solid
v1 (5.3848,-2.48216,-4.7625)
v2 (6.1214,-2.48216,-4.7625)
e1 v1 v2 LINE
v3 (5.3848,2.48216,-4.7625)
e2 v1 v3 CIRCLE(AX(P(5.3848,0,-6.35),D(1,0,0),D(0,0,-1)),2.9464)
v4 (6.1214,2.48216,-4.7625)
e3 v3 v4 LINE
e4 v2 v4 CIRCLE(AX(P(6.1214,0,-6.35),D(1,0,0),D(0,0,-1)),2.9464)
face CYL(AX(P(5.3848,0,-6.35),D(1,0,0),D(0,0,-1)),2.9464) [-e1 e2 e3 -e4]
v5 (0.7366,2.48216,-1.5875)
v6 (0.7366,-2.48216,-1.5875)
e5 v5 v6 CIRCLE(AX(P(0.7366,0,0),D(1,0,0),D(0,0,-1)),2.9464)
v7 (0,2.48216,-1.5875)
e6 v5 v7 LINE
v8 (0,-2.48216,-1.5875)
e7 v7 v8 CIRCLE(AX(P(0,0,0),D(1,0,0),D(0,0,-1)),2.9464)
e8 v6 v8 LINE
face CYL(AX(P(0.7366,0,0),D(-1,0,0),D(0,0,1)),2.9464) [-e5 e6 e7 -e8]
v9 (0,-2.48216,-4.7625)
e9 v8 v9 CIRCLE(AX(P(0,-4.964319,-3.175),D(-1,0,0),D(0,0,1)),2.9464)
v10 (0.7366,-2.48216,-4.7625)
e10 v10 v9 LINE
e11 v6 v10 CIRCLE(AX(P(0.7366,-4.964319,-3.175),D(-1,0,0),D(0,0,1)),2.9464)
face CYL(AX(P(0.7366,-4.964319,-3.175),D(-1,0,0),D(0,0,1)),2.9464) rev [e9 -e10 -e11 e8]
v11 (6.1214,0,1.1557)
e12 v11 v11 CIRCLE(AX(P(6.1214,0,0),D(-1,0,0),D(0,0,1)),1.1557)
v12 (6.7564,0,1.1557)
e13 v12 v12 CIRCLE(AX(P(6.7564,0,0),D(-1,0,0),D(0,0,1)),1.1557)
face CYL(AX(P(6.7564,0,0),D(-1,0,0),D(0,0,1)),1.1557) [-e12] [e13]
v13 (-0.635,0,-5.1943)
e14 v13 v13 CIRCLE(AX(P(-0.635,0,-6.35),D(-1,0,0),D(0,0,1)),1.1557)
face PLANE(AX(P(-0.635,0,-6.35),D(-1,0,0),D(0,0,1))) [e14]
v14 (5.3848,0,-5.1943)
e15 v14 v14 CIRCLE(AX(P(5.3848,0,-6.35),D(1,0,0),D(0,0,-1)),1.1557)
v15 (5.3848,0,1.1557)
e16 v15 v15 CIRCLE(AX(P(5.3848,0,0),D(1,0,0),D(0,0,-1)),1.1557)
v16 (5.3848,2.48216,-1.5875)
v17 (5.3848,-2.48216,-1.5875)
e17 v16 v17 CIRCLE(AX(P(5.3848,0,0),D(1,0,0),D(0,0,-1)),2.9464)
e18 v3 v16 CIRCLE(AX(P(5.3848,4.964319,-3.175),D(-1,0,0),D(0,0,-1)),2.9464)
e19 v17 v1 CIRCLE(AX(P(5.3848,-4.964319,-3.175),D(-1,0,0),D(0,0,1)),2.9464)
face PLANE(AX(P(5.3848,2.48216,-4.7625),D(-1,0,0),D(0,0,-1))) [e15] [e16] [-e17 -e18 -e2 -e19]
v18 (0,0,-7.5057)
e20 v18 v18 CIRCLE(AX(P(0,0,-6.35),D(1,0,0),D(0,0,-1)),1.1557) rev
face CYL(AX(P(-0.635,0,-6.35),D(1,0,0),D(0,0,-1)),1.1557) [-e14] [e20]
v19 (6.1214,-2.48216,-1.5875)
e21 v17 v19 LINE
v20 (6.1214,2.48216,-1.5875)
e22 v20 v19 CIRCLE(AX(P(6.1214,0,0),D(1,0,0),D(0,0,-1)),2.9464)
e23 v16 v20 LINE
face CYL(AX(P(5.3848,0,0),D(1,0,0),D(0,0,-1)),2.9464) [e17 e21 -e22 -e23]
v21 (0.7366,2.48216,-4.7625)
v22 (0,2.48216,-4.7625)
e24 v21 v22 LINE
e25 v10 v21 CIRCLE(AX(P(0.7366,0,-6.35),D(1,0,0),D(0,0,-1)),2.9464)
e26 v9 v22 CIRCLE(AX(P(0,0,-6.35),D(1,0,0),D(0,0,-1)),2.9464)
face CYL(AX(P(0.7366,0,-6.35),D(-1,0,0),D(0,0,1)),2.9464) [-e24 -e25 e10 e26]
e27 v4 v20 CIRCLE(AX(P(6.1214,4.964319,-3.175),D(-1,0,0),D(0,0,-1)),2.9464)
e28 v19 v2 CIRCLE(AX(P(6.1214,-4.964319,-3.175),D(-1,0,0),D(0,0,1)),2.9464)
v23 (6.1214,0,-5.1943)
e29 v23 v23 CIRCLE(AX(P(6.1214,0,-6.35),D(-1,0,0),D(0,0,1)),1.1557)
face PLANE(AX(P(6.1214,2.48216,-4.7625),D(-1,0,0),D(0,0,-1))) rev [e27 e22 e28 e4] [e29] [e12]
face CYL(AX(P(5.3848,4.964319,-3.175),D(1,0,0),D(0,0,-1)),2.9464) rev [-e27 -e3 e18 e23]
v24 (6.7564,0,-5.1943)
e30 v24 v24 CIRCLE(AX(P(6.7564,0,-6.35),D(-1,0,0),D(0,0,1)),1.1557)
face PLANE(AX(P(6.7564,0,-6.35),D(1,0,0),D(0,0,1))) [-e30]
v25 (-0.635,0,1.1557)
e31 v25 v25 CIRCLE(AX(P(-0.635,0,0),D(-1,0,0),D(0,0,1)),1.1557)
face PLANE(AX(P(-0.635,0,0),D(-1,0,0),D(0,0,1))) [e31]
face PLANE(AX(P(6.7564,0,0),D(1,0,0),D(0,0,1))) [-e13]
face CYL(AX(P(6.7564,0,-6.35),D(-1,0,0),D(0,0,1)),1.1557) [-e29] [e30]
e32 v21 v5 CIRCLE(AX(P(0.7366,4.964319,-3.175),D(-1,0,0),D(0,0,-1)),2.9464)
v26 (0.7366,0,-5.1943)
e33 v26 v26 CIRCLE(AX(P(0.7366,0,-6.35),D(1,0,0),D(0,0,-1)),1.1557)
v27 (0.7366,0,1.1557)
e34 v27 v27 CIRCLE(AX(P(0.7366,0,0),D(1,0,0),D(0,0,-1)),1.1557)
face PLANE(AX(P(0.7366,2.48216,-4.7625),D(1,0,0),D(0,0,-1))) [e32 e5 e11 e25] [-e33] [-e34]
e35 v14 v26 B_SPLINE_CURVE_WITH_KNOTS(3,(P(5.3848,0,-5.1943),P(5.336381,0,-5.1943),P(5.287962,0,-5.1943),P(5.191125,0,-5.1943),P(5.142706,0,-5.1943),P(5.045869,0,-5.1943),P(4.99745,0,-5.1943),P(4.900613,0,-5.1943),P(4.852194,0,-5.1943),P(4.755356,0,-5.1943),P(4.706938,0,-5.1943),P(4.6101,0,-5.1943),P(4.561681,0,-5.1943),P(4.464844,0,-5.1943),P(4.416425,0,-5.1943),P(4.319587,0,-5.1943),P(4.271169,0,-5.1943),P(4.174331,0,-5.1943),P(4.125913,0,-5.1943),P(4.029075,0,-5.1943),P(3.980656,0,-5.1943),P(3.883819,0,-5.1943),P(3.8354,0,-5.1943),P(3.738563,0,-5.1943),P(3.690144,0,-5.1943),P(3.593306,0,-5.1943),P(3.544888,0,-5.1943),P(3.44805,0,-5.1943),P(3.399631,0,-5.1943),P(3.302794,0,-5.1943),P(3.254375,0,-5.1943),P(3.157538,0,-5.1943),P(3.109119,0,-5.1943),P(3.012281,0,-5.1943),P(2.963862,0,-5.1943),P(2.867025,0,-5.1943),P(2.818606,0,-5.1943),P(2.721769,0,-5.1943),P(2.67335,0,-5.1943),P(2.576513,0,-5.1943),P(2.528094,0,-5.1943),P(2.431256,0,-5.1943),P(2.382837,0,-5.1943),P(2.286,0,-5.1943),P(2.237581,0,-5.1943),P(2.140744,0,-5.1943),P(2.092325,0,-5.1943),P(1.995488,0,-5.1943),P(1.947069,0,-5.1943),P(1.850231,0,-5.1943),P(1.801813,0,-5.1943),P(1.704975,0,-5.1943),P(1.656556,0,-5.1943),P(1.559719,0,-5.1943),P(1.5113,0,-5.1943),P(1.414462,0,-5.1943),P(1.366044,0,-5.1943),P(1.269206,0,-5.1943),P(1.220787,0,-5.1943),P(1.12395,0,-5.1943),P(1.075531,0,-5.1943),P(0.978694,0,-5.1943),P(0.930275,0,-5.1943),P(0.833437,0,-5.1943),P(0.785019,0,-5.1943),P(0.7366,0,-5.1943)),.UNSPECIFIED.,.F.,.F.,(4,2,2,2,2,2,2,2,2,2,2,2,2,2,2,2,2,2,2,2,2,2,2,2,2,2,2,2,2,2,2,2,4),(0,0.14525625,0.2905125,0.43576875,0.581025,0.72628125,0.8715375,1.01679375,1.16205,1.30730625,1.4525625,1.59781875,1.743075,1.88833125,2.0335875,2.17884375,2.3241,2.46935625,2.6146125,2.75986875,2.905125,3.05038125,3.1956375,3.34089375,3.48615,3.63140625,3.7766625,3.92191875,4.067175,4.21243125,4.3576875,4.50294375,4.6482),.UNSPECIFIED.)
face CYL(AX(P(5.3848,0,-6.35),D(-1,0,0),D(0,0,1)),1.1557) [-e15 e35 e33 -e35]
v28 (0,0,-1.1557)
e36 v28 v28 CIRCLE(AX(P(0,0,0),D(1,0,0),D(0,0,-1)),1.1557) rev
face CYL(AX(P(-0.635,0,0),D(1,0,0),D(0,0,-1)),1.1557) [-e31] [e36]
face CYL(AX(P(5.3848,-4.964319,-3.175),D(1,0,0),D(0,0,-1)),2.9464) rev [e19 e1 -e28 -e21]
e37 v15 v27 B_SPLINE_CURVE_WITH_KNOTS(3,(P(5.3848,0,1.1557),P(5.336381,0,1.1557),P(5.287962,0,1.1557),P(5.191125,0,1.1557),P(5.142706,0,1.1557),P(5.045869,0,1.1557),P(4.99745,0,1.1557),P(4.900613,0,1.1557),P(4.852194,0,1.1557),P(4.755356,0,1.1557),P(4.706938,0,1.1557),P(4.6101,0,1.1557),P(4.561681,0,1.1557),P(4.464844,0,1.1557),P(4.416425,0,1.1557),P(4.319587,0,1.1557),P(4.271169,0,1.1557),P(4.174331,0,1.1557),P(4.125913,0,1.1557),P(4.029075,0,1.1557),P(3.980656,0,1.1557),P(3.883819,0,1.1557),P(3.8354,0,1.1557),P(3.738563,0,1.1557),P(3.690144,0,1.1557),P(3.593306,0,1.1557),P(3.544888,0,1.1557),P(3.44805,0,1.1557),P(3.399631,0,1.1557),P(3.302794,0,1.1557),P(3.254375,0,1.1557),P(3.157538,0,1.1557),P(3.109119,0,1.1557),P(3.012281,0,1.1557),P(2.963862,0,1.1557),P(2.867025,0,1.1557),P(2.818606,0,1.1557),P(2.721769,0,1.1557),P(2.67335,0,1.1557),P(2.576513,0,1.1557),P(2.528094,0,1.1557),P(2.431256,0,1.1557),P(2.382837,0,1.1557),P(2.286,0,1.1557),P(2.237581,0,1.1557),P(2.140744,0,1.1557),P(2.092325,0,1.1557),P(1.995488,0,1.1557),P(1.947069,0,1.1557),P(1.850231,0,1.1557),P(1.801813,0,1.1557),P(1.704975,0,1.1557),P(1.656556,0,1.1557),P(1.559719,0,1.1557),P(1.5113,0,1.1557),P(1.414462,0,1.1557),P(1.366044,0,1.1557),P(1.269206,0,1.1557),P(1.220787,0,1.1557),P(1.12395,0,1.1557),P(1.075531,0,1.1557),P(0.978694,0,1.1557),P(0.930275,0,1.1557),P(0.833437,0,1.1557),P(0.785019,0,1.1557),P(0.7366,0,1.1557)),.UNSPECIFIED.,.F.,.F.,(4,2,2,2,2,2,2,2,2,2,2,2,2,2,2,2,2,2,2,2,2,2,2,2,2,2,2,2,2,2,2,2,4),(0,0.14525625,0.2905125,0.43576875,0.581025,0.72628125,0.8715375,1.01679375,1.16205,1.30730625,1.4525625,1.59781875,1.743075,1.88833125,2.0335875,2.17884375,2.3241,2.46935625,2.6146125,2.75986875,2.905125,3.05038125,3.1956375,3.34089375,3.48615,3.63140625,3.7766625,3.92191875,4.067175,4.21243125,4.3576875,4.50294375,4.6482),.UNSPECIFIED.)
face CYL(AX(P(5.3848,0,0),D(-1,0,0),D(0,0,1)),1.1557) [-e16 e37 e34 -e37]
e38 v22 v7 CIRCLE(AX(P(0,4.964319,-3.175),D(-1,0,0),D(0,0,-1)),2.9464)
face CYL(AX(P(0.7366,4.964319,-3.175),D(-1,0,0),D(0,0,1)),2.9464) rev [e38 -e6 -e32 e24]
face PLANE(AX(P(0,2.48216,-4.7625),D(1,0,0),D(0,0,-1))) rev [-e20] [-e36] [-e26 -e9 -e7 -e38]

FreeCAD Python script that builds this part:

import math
import FreeCAD as App
import Part
import Sketcher
Q = App.Units.Quantity

doc = App.newDocument("Part")
body = doc.addObject("PartDesign::Body", "Body")

# Sketch on YZ plane
sketch1 = body.newObject("Sketcher::SketchObject", "Sketch")
sketch1.AttachmentSupport = (doc.getObject("YZ_Plane"), [""])
sketch1.MapMode = "FlatFace"
sketch1.addGeometry(Part.ArcOfCircle(Part.Circle(App.Vector(0, 0, 0), App.Vector(0, 0, 1), 2.9), math.radians(-33), math.radians(213)), False)
sketch1.addGeometry(Part.ArcOfCircle(Part.Circle(App.Vector(-5, -3.2, 0), App.Vector(0, 0, 1), 2.9), math.radians(-33), math.radians(33)), False)
sketch1.addGeometry(Part.ArcOfCircle(Part.Circle(App.Vector(0, -6.3, 0), App.Vector(0, 0, 1), 2.9), math.radians(147), math.radians(393)), False)
sketch1.addGeometry(Part.ArcOfCircle(Part.Circle(App.Vector(5, -3.2, 0), App.Vector(0, 0, 1), 2.9), math.radians(147), math.radians(213)), False)
sketch1.addConstraint(Sketcher.Constraint("Tangent", 0, 2, 1, 2))
sketch1.addConstraint(Sketcher.Constraint("Tangent", 1, 1, 2, 1))
sketch1.addConstraint(Sketcher.Constraint("Tangent", 2, 2, 3, 2))
sketch1.addConstraint(Sketcher.Constraint("Tangent", 3, 1, 0, 1))
sketch1.addConstraint(Sketcher.Constraint("Coincident", 0, 3, -1, 1))
sketch1.addConstraint(Sketcher.Constraint("Equal", 0, 1))
sketch1.addConstraint(Sketcher.Constraint("Equal", 1, 2))
sketch1.addConstraint(Sketcher.Constraint("Equal", 2, 3))
sketch1.addConstraint(Sketcher.Constraint("PointOnObject", 2, 3, -2))
sketch1.addConstraint(Sketcher.Constraint("Radius", 0, Q("0.116 in")))
sketch1.addConstraint(Sketcher.Constraint("DistanceY", 2, 3, -1, 1, Q("0.25 in")))
pad1 = body.newObject("PartDesign::Pad", "Pad")
pad1.Profile = sketch1
pad1.Length = Q("0.029 in")

# Sketch on YZ plane
sketch2 = body.newObject("Sketcher::SketchObject", "Sketch001")
sketch2.AttachmentSupport = (doc.getObject("YZ_Plane"), [""])
sketch2.MapMode = "FlatFace"
sketch2.AttachmentOffset = App.Placement(App.Vector(0, 0, 0.029 * 25.4), App.Rotation())
sketch2.addGeometry(Part.Circle(App.Vector(0, 0, 0), App.Vector(0, 0, 1), 1.2), False)
sketch2.addGeometry(Part.Circle(App.Vector(0, -6.3, 0), App.Vector(0, 0, 1), 1.2), False)
sketch2.addConstraint(Sketcher.Constraint("Coincident", 0, 3, -1, 1))
sketch2.addConstraint(Sketcher.Constraint("Equal", 0, 1))
sketch2.addConstraint(Sketcher.Constraint("PointOnObject", 1, 3, -2))
sketch2.addConstraint(Sketcher.Constraint("Diameter", 0, Q("0.091 in")))
sketch2.addConstraint(Sketcher.Constraint("DistanceY", 1, 3, -1, 1, Q("0.25 in")))
pad2 = body.newObject("PartDesign::Pad", "Pad001")
pad2.Profile = sketch2
pad2.Length = Q("0.183 in")

# Sketch on YZ plane
sketch3 = body.newObject("Sketcher::SketchObject", "Sketch002")
sketch3.AttachmentSupport = (doc.getObject("YZ_Plane"), [""])
sketch3.MapMode = "FlatFace"
sketch3.AttachmentOffset = App.Placement(App.Vector(0, 0, -0.025 * 25.4), App.Rotation())
sketch3.addGeometry(Part.Circle(App.Vector(0, 0, 0), App.Vector(0, 0, 1), 1.2), False)
sketch3.addGeometry(Part.Circle(App.Vector(0, -6.3, 0), App.Vector(0, 0, 1), 1.2), False)
sketch3.addConstraint(Sketcher.Constraint("Coincident", 0, 3, -1, 1))
sketch3.addConstraint(Sketcher.Constraint("Equal", 0, 1))
sketch3.addConstraint(Sketcher.Constraint("PointOnObject", 1, 3, -2))
sketch3.addConstraint(Sketcher.Constraint("Diameter", 0, Q("0.091 in")))
sketch3.addConstraint(Sketcher.Constraint("DistanceY", 1, 3, -1, 1, Q("0.25 in")))
pad3 = body.newObject("PartDesign::Pad", "Pad002")
pad3.Profile = sketch3
pad3.Length = Q("0.025 in")
doc.recompute()

datumplane = body.newObject("PartDesign::Plane", "DatumPlane")
datumplane.AttachmentSupport = (doc.getObject("YZ_Plane"), [""])
datumplane.MapMode = "FlatFace"
datumplane.AttachmentOffset = App.Placement(App.Vector(0, 0, 0.1205 * 25.4), App.Rotation())
mirrored = body.newObject("PartDesign::Mirrored", "Mirrored")
mirrored.Originals = [pad1, pad3]
mirrored.MirrorPlane = (datumplane, [""])
body.Tip = mirrored

doc.recompute()
